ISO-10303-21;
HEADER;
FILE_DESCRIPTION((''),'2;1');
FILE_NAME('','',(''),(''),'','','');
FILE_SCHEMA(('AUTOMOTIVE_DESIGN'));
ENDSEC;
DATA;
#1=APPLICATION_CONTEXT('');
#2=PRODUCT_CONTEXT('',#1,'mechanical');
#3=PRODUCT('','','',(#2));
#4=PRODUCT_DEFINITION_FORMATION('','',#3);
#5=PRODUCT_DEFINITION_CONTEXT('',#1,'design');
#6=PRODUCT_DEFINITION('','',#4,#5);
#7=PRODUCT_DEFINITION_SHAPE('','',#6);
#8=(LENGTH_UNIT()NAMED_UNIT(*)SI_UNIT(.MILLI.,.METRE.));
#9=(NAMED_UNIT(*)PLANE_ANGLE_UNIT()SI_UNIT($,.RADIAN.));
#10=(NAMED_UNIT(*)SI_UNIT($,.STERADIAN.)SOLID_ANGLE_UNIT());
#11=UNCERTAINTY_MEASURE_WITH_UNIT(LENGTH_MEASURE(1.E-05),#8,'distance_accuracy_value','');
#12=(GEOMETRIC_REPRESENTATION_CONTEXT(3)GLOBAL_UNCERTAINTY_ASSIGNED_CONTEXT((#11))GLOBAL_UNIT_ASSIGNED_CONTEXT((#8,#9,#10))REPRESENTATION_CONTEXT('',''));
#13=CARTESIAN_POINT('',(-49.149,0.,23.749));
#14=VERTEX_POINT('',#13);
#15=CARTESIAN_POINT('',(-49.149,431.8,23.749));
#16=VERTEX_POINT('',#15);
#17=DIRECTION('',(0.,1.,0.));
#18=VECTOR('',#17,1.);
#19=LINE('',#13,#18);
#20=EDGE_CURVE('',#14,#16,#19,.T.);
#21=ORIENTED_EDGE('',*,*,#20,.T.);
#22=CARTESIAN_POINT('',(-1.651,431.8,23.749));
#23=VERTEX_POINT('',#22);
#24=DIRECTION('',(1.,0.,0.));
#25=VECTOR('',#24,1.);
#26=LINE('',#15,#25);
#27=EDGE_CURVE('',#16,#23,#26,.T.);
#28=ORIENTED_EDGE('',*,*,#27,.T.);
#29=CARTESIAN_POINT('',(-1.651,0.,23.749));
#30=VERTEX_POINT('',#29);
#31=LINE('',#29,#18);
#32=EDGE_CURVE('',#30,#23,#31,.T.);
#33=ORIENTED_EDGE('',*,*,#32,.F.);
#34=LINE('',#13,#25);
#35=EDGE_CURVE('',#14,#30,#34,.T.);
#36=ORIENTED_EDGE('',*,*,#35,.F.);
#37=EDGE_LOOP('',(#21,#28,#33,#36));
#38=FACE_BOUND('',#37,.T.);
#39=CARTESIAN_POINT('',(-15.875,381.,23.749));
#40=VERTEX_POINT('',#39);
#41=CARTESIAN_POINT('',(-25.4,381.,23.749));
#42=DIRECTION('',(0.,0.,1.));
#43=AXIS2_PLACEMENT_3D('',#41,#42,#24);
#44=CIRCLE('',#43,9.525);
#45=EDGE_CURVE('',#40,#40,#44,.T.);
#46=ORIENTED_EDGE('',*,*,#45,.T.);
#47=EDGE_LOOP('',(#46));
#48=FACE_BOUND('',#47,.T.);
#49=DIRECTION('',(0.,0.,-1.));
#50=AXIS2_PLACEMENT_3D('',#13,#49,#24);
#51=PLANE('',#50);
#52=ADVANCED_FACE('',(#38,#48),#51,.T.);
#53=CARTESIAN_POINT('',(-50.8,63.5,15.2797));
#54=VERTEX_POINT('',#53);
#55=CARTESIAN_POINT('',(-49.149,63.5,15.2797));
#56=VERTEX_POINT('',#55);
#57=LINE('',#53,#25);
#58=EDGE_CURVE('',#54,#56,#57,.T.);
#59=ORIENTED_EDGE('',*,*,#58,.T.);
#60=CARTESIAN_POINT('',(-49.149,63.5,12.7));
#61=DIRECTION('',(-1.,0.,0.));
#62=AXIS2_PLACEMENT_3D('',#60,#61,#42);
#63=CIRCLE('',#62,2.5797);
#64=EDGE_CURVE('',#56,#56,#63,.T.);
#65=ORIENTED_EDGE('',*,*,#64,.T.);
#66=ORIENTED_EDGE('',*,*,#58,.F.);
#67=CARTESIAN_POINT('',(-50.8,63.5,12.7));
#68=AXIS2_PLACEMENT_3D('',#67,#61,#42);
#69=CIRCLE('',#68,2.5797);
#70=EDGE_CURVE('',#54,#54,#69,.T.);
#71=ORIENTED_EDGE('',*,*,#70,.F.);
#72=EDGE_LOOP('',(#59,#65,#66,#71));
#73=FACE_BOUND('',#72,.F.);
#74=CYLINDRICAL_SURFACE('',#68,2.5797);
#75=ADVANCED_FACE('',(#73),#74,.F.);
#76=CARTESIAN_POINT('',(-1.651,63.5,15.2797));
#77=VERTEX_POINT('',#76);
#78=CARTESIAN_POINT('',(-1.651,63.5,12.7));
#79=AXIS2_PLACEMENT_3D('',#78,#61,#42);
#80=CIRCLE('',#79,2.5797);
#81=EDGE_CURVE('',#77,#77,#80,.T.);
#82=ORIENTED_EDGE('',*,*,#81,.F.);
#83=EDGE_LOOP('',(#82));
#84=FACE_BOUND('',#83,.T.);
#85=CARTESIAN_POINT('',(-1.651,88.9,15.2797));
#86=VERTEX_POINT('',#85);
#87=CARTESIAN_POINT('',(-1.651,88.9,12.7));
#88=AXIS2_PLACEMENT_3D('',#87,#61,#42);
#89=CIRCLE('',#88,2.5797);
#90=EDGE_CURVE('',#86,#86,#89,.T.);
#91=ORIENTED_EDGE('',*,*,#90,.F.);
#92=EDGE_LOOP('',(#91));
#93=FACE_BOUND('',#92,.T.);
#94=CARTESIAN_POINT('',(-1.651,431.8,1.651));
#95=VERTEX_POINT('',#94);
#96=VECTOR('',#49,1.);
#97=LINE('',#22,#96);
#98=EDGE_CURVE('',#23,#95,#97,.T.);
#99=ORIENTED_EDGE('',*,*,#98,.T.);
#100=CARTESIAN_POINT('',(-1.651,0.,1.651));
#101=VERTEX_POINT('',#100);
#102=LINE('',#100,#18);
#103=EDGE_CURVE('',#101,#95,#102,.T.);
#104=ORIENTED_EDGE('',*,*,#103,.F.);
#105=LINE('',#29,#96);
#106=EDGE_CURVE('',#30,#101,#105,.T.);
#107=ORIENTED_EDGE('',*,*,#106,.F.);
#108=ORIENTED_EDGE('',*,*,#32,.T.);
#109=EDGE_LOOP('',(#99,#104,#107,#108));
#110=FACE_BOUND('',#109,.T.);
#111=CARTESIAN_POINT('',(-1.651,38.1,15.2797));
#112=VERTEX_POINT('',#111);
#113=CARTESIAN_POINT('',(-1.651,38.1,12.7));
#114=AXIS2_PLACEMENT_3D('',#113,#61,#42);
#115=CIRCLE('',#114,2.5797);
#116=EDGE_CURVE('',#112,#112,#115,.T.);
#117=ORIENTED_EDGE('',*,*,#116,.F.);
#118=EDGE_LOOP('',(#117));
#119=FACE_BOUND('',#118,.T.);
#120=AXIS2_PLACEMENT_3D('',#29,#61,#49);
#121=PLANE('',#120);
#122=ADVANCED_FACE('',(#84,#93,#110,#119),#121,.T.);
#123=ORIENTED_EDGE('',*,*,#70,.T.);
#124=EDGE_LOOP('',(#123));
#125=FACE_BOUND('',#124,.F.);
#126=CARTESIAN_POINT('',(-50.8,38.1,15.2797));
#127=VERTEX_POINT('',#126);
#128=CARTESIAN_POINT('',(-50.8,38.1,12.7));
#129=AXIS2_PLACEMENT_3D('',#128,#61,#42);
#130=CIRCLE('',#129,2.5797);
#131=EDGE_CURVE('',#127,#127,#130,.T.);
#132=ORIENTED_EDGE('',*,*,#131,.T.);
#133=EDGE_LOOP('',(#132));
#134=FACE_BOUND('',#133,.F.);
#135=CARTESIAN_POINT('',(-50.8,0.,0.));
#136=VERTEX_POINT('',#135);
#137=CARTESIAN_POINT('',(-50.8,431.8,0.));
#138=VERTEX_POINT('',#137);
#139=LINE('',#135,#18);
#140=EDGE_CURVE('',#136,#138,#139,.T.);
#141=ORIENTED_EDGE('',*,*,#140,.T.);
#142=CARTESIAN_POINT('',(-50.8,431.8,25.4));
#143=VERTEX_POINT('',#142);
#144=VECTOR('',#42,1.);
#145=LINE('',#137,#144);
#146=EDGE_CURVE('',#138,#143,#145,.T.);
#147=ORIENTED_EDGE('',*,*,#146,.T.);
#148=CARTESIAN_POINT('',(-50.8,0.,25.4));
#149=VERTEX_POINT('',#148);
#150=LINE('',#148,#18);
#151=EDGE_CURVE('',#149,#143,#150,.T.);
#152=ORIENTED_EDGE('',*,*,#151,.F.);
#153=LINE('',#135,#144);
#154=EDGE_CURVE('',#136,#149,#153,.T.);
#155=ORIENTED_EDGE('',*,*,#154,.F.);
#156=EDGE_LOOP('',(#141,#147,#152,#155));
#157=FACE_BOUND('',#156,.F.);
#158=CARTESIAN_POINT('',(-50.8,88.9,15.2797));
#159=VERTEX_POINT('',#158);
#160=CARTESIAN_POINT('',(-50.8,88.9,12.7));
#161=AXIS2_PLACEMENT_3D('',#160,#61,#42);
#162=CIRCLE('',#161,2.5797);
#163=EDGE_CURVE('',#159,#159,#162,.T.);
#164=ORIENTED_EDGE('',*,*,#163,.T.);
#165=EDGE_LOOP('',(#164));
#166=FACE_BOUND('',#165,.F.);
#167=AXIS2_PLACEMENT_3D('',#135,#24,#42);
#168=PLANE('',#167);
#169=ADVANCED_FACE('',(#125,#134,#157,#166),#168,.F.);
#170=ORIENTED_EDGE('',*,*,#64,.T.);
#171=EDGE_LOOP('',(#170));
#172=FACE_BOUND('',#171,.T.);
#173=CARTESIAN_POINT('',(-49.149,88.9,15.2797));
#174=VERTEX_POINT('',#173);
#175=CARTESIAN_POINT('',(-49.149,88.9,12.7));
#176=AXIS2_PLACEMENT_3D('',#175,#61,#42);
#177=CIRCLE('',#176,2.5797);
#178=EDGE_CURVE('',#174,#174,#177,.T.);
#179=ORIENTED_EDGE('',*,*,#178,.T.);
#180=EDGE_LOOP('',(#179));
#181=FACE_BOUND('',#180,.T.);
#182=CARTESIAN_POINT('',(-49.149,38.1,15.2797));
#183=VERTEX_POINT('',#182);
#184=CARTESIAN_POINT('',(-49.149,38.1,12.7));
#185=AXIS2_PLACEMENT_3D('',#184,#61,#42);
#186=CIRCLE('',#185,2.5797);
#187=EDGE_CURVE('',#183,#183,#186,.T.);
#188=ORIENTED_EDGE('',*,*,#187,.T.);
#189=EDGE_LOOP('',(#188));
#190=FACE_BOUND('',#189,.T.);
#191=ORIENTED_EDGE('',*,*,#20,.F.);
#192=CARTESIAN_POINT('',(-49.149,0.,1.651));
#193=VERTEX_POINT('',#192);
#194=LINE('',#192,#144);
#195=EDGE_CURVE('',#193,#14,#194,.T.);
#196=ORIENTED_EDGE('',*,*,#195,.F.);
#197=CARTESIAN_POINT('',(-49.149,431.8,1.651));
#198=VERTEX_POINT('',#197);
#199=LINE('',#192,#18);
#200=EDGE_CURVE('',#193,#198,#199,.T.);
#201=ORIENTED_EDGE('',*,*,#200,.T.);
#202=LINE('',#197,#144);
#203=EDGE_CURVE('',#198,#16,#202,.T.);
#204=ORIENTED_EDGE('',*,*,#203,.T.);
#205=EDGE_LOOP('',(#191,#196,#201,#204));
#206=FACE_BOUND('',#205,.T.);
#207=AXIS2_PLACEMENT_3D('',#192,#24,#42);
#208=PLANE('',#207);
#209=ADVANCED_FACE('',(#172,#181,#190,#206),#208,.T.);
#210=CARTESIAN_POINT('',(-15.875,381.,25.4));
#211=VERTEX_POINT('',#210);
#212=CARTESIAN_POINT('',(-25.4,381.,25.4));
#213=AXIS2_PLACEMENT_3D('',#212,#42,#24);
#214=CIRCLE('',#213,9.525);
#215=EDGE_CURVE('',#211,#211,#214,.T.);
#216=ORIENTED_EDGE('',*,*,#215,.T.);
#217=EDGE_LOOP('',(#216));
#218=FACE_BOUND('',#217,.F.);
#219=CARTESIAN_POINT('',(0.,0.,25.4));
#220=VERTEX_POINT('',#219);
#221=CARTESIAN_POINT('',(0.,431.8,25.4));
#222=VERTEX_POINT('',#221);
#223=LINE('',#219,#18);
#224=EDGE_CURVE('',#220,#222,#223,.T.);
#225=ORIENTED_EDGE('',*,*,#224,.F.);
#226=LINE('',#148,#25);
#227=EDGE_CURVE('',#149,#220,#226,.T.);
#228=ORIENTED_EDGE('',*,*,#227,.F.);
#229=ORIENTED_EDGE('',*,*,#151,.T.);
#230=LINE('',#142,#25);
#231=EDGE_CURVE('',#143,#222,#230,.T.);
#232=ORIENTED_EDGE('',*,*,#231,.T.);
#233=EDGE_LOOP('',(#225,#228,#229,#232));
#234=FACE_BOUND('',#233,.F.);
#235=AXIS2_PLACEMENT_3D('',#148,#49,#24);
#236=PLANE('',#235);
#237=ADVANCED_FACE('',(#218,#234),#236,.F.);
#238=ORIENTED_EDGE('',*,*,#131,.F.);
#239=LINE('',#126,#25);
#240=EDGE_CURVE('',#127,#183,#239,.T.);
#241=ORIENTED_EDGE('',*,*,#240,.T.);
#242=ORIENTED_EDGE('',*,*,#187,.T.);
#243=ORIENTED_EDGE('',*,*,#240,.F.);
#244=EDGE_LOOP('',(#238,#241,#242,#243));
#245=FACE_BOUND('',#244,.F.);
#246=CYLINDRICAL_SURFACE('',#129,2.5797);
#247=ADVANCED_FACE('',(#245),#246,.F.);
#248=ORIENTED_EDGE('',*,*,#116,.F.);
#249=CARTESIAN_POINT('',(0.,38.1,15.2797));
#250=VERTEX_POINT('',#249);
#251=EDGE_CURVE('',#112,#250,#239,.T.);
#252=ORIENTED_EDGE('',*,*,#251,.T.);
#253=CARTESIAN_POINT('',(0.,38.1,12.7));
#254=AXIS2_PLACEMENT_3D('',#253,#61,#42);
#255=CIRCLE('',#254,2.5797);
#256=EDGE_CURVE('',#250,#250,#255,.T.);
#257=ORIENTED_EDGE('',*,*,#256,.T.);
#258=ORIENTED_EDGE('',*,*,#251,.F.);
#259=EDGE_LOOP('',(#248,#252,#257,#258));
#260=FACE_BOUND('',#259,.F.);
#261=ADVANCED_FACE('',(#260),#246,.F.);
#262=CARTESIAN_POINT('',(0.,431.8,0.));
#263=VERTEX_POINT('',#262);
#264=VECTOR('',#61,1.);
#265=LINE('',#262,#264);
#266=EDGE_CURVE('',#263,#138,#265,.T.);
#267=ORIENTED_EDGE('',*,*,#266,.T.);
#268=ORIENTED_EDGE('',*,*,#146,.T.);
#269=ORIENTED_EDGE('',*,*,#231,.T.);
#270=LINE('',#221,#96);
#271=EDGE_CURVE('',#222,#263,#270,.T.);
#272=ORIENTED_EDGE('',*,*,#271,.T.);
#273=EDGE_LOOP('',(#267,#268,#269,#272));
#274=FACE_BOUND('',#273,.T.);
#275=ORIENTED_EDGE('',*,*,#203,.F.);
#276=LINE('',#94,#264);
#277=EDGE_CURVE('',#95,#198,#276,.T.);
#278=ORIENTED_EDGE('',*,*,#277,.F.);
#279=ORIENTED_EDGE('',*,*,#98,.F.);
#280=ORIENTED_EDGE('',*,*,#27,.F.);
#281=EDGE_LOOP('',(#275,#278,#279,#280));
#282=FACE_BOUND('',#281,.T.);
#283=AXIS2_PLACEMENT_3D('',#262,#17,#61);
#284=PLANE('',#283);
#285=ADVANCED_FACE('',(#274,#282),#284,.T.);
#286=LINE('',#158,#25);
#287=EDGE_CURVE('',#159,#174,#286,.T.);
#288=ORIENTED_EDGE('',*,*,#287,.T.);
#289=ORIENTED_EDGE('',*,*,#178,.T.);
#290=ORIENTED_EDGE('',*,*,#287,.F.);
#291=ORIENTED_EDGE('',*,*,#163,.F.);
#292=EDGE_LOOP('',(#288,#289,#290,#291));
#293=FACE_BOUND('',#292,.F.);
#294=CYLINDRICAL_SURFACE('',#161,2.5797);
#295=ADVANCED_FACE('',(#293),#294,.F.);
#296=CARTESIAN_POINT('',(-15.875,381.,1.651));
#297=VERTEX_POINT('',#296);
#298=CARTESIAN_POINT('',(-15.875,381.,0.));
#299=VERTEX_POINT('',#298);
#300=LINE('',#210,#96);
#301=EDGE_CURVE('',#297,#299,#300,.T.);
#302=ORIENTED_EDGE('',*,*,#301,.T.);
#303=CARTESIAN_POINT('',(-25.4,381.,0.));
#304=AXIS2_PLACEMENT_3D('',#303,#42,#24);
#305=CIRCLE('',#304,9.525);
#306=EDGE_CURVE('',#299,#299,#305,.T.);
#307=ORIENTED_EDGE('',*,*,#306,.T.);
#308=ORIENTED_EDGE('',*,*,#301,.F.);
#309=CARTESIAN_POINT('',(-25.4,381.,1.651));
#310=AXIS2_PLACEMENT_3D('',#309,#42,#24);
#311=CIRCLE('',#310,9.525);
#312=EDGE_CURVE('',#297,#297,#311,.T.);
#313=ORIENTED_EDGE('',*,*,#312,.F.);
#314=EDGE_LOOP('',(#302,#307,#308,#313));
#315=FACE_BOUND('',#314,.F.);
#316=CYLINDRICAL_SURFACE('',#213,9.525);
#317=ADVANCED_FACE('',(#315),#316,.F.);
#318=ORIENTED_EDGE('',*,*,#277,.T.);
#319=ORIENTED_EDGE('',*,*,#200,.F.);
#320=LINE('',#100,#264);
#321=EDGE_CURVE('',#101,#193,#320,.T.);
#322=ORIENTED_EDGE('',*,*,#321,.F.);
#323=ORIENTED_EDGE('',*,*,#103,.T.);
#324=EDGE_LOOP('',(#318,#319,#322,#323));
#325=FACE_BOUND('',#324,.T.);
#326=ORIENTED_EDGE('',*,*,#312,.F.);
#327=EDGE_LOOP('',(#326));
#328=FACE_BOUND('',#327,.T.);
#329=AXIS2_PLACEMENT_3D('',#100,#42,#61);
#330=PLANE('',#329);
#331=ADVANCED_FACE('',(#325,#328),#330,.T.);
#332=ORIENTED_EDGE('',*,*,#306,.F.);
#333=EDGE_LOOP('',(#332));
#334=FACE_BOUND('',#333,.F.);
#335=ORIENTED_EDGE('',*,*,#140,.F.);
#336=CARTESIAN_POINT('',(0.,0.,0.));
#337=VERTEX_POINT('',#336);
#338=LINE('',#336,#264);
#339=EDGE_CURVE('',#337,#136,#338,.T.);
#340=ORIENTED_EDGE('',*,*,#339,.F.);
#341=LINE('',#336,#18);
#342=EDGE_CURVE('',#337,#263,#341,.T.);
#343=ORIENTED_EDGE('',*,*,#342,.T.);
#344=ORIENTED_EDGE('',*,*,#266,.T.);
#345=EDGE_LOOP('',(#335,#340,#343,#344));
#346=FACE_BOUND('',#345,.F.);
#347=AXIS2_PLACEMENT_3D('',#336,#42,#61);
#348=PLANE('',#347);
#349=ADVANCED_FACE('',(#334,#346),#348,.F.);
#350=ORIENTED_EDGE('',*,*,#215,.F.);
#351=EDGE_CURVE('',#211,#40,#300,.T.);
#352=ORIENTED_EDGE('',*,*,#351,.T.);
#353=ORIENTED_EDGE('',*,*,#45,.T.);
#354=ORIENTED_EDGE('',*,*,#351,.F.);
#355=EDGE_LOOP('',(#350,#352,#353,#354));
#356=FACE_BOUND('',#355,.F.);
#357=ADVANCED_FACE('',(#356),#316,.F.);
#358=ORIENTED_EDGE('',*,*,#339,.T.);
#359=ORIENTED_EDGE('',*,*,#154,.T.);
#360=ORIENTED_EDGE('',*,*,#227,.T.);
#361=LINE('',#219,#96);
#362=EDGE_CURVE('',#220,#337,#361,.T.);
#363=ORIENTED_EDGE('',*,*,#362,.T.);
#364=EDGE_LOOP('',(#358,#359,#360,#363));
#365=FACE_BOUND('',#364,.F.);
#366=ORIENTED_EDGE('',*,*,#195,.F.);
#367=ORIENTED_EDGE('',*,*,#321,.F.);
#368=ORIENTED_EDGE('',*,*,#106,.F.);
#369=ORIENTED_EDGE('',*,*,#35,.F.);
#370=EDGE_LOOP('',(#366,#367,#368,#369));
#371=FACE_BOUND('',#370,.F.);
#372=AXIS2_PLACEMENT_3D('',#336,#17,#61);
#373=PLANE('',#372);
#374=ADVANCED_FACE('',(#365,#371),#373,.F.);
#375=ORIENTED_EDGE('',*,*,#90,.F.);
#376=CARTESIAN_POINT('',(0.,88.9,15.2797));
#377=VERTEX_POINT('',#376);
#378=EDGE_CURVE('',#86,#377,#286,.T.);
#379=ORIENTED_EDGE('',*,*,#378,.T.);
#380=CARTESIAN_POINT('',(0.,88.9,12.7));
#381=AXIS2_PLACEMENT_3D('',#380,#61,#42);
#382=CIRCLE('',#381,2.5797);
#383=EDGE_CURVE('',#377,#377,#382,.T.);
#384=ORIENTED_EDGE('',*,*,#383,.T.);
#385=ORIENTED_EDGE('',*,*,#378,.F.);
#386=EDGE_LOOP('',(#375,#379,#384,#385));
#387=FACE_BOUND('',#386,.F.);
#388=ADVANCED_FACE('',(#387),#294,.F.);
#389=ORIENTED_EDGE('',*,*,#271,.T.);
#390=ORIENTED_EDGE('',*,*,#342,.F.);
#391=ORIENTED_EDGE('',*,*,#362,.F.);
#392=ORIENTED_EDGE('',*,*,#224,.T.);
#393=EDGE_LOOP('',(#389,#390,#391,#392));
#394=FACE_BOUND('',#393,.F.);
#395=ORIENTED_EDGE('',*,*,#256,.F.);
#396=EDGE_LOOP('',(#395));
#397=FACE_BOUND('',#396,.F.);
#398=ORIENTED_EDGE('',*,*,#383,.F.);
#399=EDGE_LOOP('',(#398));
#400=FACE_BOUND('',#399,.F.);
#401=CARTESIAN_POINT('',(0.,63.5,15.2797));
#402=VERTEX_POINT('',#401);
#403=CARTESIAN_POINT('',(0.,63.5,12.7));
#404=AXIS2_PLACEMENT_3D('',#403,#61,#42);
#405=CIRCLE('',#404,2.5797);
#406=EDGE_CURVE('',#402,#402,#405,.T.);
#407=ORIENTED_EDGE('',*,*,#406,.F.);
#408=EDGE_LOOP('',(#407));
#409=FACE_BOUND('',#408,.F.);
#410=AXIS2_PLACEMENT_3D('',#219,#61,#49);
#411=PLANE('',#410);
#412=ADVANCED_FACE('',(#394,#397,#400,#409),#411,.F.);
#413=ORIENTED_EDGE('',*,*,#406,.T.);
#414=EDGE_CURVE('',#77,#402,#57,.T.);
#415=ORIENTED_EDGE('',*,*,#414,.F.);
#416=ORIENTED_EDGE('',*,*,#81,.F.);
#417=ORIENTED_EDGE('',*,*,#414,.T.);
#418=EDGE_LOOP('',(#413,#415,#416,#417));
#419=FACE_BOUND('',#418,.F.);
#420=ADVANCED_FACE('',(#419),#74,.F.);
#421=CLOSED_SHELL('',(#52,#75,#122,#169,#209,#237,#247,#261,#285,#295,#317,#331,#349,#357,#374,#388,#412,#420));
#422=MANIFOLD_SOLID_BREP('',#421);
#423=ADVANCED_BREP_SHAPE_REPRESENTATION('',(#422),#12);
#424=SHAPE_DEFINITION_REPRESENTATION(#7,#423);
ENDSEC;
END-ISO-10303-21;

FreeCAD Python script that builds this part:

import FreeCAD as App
import Part
import Sketcher

V = App.Vector
Q = App.Units.Quantity


def add_polygon(sketch, points):
    """Adds a closed chain of lines whose ends are joined by coincident constraints."""
    first, n = sketch.GeometryCount, len(points)
    for a, b in zip(points, points[1:] + points[:1]):
        sketch.addGeometry(Part.LineSegment(App.Vector(*a, 0), App.Vector(*b, 0)), False)
    for i in range(n):
        sketch.addConstraint(Sketcher.Constraint("Coincident", first + i, 2, first + (i + 1) % n, 1))

doc = App.newDocument("Part")
body = doc.addObject("PartDesign::Body", "Body")

sketch1 = body.newObject("Sketcher::SketchObject", "Sketch")
sketch1.AttachmentSupport = (doc.getObject("XZ_Plane"), [""])
sketch1.MapMode = "FlatFace"
add_polygon(sketch1, [(0, 25), (0, 0), (-51, 0), (-51, 25)])
add_polygon(sketch1, [(-2, 24), (-49, 24), (-49, 2), (-2, 2)])
sketch1.addConstraint(Sketcher.Constraint("Vertical", 0))
sketch1.addConstraint(Sketcher.Constraint("Horizontal", 1))
sketch1.addConstraint(Sketcher.Constraint("Vertical", 2))
sketch1.addConstraint(Sketcher.Constraint("Horizontal", 3))
sketch1.addConstraint(Sketcher.Constraint("Horizontal", 4))
sketch1.addConstraint(Sketcher.Constraint("Vertical", 5))
sketch1.addConstraint(Sketcher.Constraint("Horizontal", 6))
sketch1.addConstraint(Sketcher.Constraint("Vertical", 7))
sketch1.addConstraint(Sketcher.Constraint("Coincident", 0, 2, -1, 1))
sketch1.addConstraint(Sketcher.Constraint("DistanceX", 1, 2, 1, 1, Q("2 in")))
sketch1.addConstraint(Sketcher.Constraint("DistanceY", 0, 2, 0, 1, Q("1 in")))
sketch1.addConstraint(Sketcher.Constraint("DistanceY", -1, 1, 5, 2, Q("0.065 in")))
sketch1.addConstraint(Sketcher.Constraint("DistanceX", 6, 2, -1, 1, Q("0.065 in")))
sketch1.addConstraint(Sketcher.Constraint("DistanceX", 2, 2, 4, 2, Q("0.065 in")))
sketch1.addConstraint(Sketcher.Constraint("DistanceY", 4, 2, 2, 2, Q("0.065 in")))
pad1 = body.newObject("PartDesign::Pad", "Pad")
pad1.Profile = sketch1
pad1.Length = Q("17 in")
pad1.Reversed = True

sketch2 = body.newObject("Sketcher::SketchObject", "Sketch001")
sketch2.AttachmentSupport = (doc.getObject("YZ_Plane"), [""])
sketch2.MapMode = "FlatFace"
sketch2.AttachmentOffset = App.Placement(V(0, 0, -2 * 25.4), App.Rotation())
sketch2.addGeometry(Part.Circle(V(38.1, 12.7, 0), V(0, 0, 1), 2.6), False)
sketch2.addGeometry(Part.Circle(V(63.5, 12.7, 0), V(0, 0, 1), 2.6), False)
sketch2.addGeometry(Part.Circle(V(88.9, 12.7, 0), V(0, 0, 1), 2.6), False)
sketch2.addConstraint(Sketcher.Constraint("Equal", 0, 1))
sketch2.addConstraint(Sketcher.Constraint("Equal", 1, 2))
sketch2.addConstraint(Sketcher.Constraint("Horizontal", 0, 3, 1, 3))
sketch2.addConstraint(Sketcher.Constraint("Horizontal", 1, 3, 2, 3))
sketch2.addConstraint(Sketcher.Constraint("Diameter", 0, Q("0.203126 in")))
sketch2.addConstraint(Sketcher.Constraint("DistanceX", 0, 3, 1, 3, Q("1 in")))
sketch2.addConstraint(Sketcher.Constraint("DistanceX", 1, 3, 2, 3, Q("1 in")))
sketch2.addConstraint(Sketcher.Constraint("DistanceX", -1, 1, 0, 3, Q("1.5 in")))
sketch2.addConstraint(Sketcher.Constraint("DistanceY", -1, 1, 0, 3, Q("0.5 in")))
pocket1 = body.newObject("PartDesign::Pocket", "Pocket")
pocket1.Profile = sketch2
pocket1.Length = Q("24 in")
pocket1.Reversed = True

sketch3 = body.newObject("Sketcher::SketchObject", "Sketch002")
sketch3.AttachmentSupport = (doc.getObject("XY_Plane"), [""])
sketch3.MapMode = "FlatFace"
sketch3.AttachmentOffset = App.Placement(V(0, 0, 1 * 25.4), App.Rotation())
sketch3.addGeometry(Part.Circle(V(-25, 381, 0), V(0, 0, 1), 10), False)
sketch3.addConstraint(Sketcher.Constraint("Diameter", 0, Q("0.75 in")))
sketch3.addConstraint(Sketcher.Constraint("DistanceX", 0, 3, -1, 1, Q("1 in")))
sketch3.addConstraint(Sketcher.Constraint("DistanceY", -1, 1, 0, 3, Q("15 in")))
pocket2 = body.newObject("PartDesign::Pocket", "Pocket001")
pocket2.Profile = sketch3
pocket2.Length = Q("1 in")

doc.recompute()
